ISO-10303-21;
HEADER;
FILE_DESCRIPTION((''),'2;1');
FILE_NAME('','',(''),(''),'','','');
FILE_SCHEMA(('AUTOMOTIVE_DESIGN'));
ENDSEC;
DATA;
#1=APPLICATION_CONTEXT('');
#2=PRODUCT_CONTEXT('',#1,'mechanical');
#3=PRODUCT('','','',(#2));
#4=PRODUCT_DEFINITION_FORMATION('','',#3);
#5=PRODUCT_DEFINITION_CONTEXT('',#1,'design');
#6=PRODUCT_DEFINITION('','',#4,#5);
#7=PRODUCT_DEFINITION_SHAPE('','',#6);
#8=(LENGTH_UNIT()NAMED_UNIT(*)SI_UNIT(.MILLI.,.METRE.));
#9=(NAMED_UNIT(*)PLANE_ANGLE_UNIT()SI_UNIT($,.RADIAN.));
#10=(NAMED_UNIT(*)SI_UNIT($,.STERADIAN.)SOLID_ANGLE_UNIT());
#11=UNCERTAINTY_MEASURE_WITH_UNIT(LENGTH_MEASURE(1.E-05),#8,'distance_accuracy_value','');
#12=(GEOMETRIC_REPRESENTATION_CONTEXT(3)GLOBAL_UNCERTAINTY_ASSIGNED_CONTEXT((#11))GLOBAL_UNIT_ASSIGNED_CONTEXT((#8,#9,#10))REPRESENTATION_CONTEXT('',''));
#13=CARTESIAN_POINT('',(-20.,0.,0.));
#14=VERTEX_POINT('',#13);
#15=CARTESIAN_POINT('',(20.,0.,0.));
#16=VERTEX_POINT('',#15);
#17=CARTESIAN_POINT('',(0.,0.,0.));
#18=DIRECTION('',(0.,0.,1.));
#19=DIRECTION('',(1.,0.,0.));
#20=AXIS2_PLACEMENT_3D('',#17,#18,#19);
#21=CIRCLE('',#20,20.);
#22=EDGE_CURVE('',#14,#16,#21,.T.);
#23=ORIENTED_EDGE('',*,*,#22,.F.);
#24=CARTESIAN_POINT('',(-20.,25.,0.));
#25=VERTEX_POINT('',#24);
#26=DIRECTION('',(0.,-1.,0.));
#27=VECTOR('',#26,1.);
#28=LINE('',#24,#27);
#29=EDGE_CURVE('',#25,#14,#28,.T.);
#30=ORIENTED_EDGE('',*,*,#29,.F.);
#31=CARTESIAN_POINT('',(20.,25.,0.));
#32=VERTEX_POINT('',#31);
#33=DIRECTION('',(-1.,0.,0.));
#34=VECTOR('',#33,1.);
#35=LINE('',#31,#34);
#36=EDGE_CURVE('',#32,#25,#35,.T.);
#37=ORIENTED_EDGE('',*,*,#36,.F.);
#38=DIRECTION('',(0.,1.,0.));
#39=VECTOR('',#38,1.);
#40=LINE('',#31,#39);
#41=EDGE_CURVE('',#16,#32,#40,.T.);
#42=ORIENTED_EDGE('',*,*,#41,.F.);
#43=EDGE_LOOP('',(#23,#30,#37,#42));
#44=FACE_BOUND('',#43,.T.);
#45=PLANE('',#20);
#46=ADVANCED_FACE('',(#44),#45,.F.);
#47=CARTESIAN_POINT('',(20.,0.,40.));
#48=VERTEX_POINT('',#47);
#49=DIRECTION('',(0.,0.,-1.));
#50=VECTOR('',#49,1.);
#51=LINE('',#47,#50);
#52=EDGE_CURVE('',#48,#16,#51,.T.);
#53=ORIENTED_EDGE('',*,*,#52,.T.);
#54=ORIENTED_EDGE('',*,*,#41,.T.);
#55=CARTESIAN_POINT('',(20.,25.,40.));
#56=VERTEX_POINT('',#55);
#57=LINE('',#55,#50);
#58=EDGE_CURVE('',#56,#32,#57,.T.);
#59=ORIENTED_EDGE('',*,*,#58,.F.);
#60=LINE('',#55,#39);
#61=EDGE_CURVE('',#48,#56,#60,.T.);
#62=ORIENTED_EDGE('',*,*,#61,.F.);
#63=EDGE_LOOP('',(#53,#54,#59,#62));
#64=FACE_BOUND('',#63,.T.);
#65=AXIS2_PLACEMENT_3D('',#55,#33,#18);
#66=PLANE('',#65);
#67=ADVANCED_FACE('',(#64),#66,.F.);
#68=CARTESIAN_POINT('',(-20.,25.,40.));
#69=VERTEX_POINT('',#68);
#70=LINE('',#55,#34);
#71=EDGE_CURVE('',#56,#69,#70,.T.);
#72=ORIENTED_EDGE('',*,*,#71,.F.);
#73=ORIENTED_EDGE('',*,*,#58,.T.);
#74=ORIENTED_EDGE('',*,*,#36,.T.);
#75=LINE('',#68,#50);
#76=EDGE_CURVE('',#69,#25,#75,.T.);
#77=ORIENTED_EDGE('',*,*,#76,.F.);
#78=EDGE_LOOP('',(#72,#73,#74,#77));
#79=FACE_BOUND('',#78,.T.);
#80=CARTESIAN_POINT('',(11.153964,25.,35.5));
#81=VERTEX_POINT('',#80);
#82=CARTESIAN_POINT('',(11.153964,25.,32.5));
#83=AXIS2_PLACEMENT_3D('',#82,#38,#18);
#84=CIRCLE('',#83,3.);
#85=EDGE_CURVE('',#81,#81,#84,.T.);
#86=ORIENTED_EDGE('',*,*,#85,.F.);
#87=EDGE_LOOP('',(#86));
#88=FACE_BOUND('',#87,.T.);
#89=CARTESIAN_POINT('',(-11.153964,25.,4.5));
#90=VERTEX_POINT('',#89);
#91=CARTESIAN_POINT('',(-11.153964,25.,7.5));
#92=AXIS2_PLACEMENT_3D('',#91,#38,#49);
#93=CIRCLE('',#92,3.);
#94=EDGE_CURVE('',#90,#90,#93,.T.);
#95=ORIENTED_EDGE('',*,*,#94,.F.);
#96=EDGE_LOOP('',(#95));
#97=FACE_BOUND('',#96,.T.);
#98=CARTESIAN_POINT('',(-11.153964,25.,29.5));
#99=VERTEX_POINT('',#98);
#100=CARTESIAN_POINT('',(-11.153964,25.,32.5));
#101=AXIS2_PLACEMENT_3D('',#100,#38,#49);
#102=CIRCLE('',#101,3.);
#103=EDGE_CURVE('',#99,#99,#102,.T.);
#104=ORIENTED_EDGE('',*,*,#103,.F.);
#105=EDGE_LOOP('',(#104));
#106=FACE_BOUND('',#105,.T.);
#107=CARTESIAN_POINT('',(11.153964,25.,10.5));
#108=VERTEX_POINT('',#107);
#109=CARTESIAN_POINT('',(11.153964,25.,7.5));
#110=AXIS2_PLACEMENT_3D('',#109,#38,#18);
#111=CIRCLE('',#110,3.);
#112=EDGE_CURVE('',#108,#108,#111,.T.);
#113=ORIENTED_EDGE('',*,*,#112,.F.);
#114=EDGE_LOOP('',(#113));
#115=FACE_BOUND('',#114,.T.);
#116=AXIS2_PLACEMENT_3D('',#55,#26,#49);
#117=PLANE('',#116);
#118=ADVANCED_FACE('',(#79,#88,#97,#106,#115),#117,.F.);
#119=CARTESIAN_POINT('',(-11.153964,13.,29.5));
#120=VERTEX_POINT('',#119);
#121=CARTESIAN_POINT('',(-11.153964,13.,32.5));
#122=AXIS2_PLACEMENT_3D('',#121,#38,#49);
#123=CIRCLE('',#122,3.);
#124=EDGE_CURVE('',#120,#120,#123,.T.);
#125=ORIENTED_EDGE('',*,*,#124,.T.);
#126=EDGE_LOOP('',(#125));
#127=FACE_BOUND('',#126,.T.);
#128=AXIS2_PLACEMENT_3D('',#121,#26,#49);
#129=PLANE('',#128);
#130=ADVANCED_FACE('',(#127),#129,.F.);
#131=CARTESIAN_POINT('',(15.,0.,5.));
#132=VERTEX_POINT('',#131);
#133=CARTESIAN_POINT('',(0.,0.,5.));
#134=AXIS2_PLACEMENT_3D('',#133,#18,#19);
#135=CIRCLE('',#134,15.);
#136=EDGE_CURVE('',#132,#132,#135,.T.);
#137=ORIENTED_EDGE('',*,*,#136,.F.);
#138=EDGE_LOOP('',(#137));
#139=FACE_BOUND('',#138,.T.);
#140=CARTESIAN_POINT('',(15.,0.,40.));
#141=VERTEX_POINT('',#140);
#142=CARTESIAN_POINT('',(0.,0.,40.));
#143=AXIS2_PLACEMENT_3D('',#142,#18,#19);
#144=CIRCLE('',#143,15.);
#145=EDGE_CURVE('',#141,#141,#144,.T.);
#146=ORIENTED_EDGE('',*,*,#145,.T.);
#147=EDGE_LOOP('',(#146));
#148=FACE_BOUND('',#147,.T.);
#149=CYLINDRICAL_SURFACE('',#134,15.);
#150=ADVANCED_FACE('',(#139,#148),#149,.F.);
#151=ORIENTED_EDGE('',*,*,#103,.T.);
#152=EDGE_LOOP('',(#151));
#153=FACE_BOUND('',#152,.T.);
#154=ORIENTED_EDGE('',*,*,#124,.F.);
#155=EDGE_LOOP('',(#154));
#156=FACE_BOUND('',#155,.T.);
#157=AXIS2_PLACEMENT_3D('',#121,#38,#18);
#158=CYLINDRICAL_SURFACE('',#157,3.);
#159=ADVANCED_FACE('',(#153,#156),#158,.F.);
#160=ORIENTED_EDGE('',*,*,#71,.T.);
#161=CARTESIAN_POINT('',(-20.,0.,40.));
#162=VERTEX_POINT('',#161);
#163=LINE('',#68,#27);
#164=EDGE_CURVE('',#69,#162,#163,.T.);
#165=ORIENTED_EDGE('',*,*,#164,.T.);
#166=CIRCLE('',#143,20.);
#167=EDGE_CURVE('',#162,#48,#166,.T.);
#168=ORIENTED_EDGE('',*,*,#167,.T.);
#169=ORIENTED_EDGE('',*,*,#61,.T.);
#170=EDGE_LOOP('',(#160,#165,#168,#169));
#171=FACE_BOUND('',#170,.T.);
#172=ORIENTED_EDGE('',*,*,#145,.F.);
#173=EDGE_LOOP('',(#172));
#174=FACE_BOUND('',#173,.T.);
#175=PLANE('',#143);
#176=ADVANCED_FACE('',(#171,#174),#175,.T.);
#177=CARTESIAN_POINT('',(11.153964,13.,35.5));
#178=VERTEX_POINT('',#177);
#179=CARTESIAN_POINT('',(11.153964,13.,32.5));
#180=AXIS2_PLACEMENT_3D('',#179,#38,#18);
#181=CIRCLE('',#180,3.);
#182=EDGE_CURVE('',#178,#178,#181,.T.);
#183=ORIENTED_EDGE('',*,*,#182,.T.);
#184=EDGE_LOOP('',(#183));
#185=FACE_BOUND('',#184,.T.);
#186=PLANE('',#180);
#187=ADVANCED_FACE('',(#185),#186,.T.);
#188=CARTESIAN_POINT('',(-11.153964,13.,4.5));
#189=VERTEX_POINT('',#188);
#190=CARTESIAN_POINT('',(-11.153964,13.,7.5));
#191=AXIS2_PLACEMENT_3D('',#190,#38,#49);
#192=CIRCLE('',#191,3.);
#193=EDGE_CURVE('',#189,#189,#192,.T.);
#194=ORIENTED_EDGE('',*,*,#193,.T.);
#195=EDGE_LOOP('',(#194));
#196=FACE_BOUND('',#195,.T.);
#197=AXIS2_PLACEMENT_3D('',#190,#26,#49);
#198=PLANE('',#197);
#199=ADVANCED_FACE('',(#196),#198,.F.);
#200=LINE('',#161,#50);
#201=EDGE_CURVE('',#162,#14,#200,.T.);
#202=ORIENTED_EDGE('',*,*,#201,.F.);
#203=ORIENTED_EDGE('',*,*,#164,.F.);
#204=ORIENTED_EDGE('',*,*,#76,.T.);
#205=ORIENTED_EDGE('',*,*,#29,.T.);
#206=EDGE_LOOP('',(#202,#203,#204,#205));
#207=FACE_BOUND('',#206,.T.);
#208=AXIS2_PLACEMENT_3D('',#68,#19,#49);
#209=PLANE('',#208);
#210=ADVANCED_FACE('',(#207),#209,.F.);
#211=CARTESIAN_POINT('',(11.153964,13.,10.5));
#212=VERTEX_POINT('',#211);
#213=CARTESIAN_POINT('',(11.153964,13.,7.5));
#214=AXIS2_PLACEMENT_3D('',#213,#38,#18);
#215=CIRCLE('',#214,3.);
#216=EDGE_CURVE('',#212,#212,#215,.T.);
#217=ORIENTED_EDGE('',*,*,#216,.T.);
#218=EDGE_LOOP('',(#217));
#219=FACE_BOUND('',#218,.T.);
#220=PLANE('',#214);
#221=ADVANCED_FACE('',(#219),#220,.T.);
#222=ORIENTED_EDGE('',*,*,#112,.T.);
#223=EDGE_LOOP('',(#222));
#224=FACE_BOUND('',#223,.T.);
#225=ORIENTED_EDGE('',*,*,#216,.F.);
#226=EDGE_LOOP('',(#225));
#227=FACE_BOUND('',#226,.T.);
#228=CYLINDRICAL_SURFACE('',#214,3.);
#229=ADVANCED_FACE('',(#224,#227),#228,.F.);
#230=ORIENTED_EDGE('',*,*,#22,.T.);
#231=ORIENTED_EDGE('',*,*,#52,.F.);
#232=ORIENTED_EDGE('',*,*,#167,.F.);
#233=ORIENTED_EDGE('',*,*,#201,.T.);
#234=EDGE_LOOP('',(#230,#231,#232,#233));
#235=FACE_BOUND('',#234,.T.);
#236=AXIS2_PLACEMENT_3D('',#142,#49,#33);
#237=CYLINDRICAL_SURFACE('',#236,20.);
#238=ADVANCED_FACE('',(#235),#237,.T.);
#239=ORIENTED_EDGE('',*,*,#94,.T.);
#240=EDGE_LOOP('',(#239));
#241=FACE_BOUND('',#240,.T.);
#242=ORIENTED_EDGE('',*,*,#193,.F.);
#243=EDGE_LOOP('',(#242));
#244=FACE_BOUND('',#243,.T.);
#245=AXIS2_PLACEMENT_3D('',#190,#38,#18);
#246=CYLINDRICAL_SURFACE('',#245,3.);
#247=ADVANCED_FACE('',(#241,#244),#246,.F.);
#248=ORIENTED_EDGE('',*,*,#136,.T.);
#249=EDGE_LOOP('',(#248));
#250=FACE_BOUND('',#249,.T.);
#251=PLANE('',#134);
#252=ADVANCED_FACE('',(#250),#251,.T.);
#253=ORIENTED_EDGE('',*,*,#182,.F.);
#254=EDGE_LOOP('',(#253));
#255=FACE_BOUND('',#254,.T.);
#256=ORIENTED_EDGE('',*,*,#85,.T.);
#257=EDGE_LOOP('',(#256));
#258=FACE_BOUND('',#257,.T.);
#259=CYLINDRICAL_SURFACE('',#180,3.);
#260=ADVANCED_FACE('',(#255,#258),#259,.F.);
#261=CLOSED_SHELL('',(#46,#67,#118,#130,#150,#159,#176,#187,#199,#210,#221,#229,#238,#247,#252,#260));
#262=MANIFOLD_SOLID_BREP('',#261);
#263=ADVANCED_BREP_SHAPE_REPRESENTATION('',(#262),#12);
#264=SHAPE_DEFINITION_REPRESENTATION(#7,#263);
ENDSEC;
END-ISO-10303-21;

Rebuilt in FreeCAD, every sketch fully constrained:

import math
import FreeCAD as App
import Part
import Sketcher

V = App.Vector
Q = App.Units.Quantity

doc = App.newDocument("Part")
body = doc.addObject("PartDesign::Body", "Body")

sketch1 = doc.addObject("Sketcher::SketchObject", "Sketch")
body.addObject(sketch1)
sketch1.AttachmentSupport = (doc.XY_Plane, [""])
sketch1.MapMode = "FlatFace"
sketch1.addGeometry(Part.LineSegment(V(20, 25, 0), V(-20, 25, 0)), False)
sketch1.addGeometry(Part.LineSegment(V(-20, 25, 0), V(-20, 0, 0)), False)
sketch1.addGeometry(Part.ArcOfCircle(Part.Circle(V(0, 0, 0), V(0, 0, 1), 20), math.radians(180), math.radians(360)), False)
sketch1.addGeometry(Part.LineSegment(V(20, 0, 0), V(20, 25, 0)), False)
sketch1.addConstraint(Sketcher.Constraint("Coincident", 0, 2, 1, 1))
sketch1.addConstraint(Sketcher.Constraint("Tangent", 1, 2, 2, 1))
sketch1.addConstraint(Sketcher.Constraint("Tangent", 2, 2, 3, 1))
sketch1.addConstraint(Sketcher.Constraint("Coincident", 3, 2, 0, 1))
sketch1.addConstraint(Sketcher.Constraint("Horizontal", 0))
sketch1.addConstraint(Sketcher.Constraint("Vertical", 1))
sketch1.addConstraint(Sketcher.Constraint("Vertical", 3))
sketch1.addConstraint(Sketcher.Constraint("Coincident", 2, 3, -1, 1))
sketch1.addConstraint(Sketcher.Constraint("Radius", 2, Q("20 mm")))
sketch1.addConstraint(Sketcher.Constraint("DistanceY", 1, 2, 1, 1, Q("25 mm")))
pad1 = doc.addObject("PartDesign::Pad", "Pad")
body.addObject(pad1)
pad1.Profile = sketch1
pad1.Length = 40

sketch2 = doc.addObject("Sketcher::SketchObject", "Sketch001")
body.addObject(sketch2)
sketch2.AttachmentSupport = (doc.XY_Plane, [""])
sketch2.MapMode = "FlatFace"
sketch2.AttachmentOffset = App.Placement(V(0, 0, 40), App.Rotation())
sketch2.addGeometry(Part.Circle(V(0, 0, 0), V(0, 0, 1), 15), False)
sketch2.addConstraint(Sketcher.Constraint("Coincident", 0, 3, -1, 1))
sketch2.addConstraint(Sketcher.Constraint("Diameter", 0, Q("30 mm")))
pocket1 = doc.addObject("PartDesign::Pocket", "Pocket")
body.addObject(pocket1)
pocket1.Profile = sketch2
pocket1.Length = 35

sketch3 = doc.addObject("Sketcher::SketchObject", "Sketch002")
body.addObject(sketch3)
sketch3.AttachmentSupport = (doc.XZ_Plane, [""])
sketch3.MapMode = "FlatFace"
sketch3.AttachmentOffset = App.Placement(V(0, 0, -25), App.Rotation())
sketch3.addGeometry(Part.Circle(V(11.2, 7.5, 0), V(0, 0, 1), 3), False)
sketch3.addGeometry(Part.Circle(V(-11.2, 7.5, 0), V(0, 0, 1), 3), False)
sketch3.addGeometry(Part.Circle(V(11.2, 32.5, 0), V(0, 0, 1), 3), False)
sketch3.addGeometry(Part.Circle(V(-11.2, 32.5, 0), V(0, 0, 1), 3), False)
sketch3.addConstraint(Sketcher.Constraint("Equal", 0, 1))
sketch3.addConstraint(Sketcher.Constraint("Equal", 1, 2))
sketch3.addConstraint(Sketcher.Constraint("Equal", 2, 3))
sketch3.addConstraint(Sketcher.Constraint("Symmetric", 0, 3, 1, 3, -2))
sketch3.addConstraint(Sketcher.Constraint("Symmetric", 2, 3, 3, 3, -2))
sketch3.addConstraint(Sketcher.Constraint("Vertical", 0, 3, 2, 3))
sketch3.addConstraint(Sketcher.Constraint("Diameter", 0, Q("6 mm")))
sketch3.addConstraint(Sketcher.Constraint("DistanceY", 0, 3, 2, 3, Q("25 mm")))
sketch3.addConstraint(Sketcher.Constraint("DistanceY", -1, 1, 0, 3, Q("7.5 mm")))
sketch3.addConstraint(Sketcher.Constraint("DistanceX", 1, 3, 0, 3, Q("22.307928 mm")))
pocket2 = doc.addObject("PartDesign::Pocket", "Pocket001")
body.addObject(pocket2)
pocket2.Profile = sketch3
pocket2.Length = 12
pocket2.Reversed = True

doc.recompute()
